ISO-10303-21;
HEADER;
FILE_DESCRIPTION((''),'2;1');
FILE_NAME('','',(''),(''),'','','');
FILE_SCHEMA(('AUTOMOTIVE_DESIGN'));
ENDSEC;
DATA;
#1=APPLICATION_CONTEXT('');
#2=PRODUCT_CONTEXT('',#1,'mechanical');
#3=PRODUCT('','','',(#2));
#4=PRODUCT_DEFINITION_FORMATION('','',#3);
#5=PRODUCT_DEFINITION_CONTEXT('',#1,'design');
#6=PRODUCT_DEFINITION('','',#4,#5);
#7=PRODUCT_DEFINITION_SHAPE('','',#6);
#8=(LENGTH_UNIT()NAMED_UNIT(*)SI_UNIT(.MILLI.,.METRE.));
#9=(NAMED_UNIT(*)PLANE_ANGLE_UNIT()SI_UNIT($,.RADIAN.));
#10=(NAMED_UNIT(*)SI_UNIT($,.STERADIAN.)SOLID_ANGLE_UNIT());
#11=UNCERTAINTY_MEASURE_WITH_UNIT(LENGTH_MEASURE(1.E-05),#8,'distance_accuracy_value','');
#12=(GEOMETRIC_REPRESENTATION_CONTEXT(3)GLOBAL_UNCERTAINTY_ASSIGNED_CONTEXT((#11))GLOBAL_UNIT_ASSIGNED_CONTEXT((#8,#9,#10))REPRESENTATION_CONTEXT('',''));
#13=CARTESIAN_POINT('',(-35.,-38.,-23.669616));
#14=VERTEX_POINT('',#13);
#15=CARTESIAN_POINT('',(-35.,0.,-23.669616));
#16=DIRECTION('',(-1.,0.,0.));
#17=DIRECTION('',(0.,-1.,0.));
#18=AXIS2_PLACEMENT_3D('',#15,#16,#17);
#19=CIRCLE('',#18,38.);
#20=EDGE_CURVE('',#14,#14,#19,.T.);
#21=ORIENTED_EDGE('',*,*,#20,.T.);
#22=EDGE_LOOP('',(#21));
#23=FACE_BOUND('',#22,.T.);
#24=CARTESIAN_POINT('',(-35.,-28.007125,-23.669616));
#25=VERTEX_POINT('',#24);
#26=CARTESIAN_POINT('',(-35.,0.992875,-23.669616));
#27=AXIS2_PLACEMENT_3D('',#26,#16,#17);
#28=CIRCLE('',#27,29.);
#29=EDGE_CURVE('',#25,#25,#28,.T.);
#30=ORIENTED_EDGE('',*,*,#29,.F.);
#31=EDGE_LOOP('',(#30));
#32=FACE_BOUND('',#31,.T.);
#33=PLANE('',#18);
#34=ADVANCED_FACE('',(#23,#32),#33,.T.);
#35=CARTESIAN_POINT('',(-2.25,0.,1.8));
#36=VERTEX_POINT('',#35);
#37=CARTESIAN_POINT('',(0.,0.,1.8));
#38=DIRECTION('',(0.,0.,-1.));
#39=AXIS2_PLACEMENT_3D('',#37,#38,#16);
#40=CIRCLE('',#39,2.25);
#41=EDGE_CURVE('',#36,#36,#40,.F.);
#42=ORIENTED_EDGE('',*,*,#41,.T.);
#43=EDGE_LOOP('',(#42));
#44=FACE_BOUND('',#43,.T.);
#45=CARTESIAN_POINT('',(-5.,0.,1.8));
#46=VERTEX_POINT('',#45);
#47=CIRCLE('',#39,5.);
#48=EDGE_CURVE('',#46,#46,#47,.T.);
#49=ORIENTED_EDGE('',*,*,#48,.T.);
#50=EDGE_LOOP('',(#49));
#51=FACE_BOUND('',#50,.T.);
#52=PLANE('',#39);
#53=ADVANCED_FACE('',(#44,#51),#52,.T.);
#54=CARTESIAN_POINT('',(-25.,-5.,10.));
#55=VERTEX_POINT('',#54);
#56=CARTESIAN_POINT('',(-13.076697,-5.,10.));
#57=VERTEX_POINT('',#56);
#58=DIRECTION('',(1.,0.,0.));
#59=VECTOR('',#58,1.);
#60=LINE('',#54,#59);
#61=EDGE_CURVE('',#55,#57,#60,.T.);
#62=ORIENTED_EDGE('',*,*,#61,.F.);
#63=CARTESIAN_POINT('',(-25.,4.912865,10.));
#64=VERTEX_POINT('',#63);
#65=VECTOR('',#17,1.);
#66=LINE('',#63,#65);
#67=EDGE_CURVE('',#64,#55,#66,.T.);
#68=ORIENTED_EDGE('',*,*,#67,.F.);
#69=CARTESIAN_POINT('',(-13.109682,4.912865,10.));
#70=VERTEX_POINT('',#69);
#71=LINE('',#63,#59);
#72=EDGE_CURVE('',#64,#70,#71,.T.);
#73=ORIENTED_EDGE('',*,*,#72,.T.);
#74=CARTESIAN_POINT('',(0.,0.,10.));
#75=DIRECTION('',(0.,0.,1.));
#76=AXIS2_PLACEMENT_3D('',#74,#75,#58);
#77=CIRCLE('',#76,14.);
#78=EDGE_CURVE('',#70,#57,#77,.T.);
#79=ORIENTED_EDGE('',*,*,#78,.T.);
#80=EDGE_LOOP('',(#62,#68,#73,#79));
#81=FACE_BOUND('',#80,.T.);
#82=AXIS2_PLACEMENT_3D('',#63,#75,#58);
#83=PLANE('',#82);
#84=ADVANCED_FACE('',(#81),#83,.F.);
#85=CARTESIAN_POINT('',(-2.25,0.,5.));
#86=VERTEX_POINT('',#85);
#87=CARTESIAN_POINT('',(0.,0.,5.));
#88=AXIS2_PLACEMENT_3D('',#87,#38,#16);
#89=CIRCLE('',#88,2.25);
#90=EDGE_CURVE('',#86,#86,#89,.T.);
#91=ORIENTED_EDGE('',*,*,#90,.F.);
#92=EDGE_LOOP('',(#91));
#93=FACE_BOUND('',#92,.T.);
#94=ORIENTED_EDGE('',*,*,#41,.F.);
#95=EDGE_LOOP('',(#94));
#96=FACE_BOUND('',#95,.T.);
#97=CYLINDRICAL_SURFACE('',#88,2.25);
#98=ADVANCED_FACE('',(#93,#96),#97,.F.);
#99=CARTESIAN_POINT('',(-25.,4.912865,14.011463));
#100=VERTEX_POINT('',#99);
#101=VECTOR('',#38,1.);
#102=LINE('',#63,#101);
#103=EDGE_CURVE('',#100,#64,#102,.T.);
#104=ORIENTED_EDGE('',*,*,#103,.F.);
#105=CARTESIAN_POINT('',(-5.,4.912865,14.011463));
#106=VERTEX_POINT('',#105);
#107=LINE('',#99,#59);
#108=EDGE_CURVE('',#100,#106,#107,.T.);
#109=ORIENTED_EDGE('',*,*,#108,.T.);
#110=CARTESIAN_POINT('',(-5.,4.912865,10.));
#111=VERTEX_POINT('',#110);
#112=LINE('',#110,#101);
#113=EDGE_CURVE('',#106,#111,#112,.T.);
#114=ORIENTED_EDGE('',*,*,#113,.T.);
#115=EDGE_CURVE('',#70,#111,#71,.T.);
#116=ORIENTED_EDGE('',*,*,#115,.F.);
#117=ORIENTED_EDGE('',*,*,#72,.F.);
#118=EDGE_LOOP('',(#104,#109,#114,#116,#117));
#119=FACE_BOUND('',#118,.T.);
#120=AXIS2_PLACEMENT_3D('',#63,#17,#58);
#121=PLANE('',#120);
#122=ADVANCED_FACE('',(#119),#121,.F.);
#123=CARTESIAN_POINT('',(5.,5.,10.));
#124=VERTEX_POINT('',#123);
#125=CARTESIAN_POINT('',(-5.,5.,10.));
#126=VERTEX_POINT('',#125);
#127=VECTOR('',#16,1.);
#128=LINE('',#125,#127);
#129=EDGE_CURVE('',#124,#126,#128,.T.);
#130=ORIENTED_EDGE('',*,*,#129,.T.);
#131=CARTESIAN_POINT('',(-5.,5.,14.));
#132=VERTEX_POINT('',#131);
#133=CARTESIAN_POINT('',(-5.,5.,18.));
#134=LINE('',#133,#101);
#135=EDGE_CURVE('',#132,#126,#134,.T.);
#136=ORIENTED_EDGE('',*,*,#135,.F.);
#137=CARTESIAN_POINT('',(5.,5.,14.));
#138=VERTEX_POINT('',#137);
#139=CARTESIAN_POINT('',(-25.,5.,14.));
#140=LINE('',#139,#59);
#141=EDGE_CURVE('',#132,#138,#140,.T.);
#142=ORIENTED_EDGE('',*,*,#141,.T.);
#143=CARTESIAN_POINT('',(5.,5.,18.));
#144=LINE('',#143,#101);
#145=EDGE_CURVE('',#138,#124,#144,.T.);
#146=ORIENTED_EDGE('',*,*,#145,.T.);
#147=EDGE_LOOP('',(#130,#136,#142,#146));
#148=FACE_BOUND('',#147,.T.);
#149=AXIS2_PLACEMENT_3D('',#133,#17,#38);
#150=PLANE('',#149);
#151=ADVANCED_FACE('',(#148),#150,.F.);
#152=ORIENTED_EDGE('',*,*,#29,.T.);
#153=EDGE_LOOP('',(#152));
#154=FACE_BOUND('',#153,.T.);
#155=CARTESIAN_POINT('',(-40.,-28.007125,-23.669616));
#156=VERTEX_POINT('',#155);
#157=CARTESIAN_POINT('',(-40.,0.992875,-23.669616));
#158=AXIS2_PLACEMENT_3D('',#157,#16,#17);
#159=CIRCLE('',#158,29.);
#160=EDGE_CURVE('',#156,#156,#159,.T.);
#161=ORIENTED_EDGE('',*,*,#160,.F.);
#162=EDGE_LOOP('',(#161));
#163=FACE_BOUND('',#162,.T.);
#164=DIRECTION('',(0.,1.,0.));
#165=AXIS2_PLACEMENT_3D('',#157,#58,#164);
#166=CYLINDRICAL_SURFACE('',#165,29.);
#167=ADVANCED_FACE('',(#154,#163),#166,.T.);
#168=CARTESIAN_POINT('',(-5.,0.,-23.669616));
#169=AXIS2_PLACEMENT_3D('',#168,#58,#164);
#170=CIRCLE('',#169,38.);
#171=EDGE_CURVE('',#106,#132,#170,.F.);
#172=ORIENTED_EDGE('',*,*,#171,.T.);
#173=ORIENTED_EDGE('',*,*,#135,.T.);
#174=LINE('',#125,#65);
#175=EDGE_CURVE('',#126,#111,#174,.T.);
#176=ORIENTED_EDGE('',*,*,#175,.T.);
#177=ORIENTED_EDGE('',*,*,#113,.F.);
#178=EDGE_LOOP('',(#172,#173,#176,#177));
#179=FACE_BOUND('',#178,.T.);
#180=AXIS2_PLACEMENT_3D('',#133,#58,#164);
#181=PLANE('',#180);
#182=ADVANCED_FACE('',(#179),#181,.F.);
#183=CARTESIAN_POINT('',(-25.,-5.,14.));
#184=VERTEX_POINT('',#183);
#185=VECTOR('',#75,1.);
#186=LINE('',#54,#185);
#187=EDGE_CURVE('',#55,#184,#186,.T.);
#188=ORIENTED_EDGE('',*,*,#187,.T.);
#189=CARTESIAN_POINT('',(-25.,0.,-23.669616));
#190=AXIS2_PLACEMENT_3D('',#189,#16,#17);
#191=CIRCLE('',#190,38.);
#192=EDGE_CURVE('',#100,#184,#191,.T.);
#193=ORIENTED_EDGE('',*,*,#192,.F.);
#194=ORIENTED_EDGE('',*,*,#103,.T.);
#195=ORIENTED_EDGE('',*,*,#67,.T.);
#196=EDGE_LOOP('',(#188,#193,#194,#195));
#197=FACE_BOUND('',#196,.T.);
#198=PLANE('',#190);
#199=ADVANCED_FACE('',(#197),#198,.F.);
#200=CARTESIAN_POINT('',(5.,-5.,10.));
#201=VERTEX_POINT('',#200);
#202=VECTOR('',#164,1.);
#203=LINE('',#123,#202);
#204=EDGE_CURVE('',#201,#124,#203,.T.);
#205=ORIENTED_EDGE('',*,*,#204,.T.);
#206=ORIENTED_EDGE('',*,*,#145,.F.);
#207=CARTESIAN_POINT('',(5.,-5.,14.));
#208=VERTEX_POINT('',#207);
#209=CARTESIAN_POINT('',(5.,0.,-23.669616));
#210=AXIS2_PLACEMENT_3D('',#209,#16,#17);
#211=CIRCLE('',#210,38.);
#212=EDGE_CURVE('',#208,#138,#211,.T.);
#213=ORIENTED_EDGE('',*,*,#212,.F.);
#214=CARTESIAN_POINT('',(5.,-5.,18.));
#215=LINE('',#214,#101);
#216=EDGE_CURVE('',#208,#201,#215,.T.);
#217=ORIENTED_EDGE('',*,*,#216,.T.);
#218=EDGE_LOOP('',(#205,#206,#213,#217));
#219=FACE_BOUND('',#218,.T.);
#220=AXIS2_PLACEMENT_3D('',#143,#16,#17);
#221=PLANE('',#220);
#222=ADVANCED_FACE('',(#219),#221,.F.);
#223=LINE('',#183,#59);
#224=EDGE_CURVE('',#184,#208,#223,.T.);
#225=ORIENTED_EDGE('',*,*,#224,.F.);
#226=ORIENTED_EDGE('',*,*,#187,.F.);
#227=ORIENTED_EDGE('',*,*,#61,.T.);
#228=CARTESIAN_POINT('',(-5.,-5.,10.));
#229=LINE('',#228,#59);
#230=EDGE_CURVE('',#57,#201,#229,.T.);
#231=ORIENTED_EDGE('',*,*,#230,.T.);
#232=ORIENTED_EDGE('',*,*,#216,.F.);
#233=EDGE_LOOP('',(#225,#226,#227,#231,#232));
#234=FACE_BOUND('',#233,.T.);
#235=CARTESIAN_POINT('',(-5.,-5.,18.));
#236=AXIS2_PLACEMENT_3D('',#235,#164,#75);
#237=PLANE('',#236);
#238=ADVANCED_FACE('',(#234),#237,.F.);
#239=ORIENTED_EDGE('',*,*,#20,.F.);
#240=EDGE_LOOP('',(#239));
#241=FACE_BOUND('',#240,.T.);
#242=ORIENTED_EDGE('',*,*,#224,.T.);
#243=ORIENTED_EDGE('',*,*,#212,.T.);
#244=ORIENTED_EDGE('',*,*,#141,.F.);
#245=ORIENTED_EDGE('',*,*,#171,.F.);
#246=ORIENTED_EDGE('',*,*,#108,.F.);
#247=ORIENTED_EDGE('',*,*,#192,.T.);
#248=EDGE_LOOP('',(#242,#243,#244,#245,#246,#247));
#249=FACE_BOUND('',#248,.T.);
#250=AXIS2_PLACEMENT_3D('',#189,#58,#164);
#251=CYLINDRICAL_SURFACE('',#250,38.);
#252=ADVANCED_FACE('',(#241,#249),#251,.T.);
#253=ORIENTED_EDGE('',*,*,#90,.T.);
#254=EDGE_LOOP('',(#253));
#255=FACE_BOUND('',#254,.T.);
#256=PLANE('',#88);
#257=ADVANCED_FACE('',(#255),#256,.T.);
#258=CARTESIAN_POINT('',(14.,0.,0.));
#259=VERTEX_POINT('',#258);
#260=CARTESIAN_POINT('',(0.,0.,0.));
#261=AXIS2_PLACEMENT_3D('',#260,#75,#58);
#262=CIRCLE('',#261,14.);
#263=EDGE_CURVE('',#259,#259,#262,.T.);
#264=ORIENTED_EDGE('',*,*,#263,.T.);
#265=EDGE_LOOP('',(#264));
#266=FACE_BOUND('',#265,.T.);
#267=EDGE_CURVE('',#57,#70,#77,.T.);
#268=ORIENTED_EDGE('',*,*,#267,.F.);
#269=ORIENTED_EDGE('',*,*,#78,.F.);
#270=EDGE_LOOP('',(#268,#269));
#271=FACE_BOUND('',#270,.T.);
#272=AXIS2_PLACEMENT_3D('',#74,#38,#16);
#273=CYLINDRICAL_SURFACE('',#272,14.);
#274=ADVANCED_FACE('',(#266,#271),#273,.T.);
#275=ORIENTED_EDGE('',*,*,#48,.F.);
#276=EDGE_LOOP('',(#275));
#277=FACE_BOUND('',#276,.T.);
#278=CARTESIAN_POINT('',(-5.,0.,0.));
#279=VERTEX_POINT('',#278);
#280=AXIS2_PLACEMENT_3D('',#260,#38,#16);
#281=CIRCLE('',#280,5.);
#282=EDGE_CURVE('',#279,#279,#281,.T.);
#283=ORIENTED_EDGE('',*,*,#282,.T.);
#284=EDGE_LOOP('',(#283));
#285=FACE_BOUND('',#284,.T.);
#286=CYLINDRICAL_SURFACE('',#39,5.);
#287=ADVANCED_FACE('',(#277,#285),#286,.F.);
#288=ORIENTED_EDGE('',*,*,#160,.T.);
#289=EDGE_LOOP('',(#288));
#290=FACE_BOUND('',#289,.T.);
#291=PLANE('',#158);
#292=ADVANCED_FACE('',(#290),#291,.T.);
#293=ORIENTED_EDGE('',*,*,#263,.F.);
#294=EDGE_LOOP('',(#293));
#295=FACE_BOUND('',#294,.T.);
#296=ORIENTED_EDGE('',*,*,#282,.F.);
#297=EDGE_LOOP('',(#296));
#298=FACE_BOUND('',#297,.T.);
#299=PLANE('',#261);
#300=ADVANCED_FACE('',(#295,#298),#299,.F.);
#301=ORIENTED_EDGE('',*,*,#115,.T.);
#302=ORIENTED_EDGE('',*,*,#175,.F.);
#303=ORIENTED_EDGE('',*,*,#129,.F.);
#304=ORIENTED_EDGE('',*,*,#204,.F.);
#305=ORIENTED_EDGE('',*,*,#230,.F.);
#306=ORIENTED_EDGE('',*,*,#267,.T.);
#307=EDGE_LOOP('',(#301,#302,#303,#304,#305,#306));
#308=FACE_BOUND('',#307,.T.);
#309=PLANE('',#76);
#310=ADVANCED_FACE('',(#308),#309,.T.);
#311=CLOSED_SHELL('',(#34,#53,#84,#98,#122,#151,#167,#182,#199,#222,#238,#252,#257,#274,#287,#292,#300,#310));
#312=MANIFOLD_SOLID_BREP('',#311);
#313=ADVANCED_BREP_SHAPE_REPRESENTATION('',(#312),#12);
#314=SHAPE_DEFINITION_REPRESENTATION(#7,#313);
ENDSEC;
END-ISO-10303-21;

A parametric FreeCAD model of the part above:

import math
import FreeCAD as App
import Part
import Sketcher
Q = App.Units.Quantity


def add_polygon(sketch, points):
    """Adds a closed chain of lines whose ends are joined by coincident constraints."""
    first, n = sketch.GeometryCount, len(points)
    for a, b in zip(points, points[1:] + points[:1]):
        sketch.addGeometry(Part.LineSegment(App.Vector(*a, 0), App.Vector(*b, 0)), False)
    for i in range(n):
        sketch.addConstraint(Sketcher.Constraint("Coincident", first + i, 2, first + (i + 1) % n, 1))

doc = App.newDocument("Part")
body = doc.addObject("PartDesign::Body", "Body")

sketch1 = body.newObject("Sketcher::SketchObject", "Sketch")
sketch1.AttachmentSupport = (doc.getObject("XY_Plane"), [""])
sketch1.MapMode = "FlatFace"
sketch1.addGeometry(Part.Circle(App.Vector(0, 0, 0), App.Vector(0, 0, 1), 14), False)
sketch1.addConstraint(Sketcher.Constraint("Coincident", 0, 3, -1, 1))
sketch1.addConstraint(Sketcher.Constraint("Diameter", 0, Q("28 mm")))
pad1 = body.newObject("PartDesign::Pad", "Pad")
pad1.Profile = sketch1
pad1.Length = 10

sketch2 = body.newObject("Sketcher::SketchObject", "Sketch001")
sketch2.AttachmentSupport = (doc.getObject("XY_Plane"), [""])
sketch2.MapMode = "FlatFace"
sketch2.addGeometry(Part.Circle(App.Vector(0, 0, 0), App.Vector(0, 0, 1), 2.25), False)
sketch2.addConstraint(Sketcher.Constraint("Coincident", 0, 3, -1, 1))
sketch2.addConstraint(Sketcher.Constraint("Diameter", 0, Q("4.5 mm")))
pocket1 = body.newObject("PartDesign::Pocket", "Pocket")
pocket1.Profile = sketch2
pocket1.Length = 5
pocket1.Reversed = True

sketch3 = body.newObject("Sketcher::SketchObject", "Sketch002")
sketch3.AttachmentSupport = (doc.getObject("XY_Plane"), [""])
sketch3.MapMode = "FlatFace"
sketch3.addGeometry(Part.Circle(App.Vector(0, 0, 0), App.Vector(0, 0, 1), 5), False)
sketch3.addConstraint(Sketcher.Constraint("Coincident", 0, 3, -1, 1))
sketch3.addConstraint(Sketcher.Constraint("Diameter", 0, Q("10 mm")))
pocket2 = body.newObject("PartDesign::Pocket", "Pocket001")
pocket2.Profile = sketch3
pocket2.Length = 1.8
pocket2.Reversed = True

sketch4 = body.newObject("Sketcher::SketchObject", "Sketch003")
sketch4.AttachmentSupport = (doc.getObject("XY_Plane"), [""])
sketch4.MapMode = "FlatFace"
sketch4.AttachmentOffset = App.Placement(App.Vector(0, 0, 10), App.Rotation())
add_polygon(sketch4, [(-5, 5), (-5, -5), (5, -5), (5, 5)])
sketch4.addConstraint(Sketcher.Constraint("Vertical", 0))
sketch4.addConstraint(Sketcher.Constraint("Horizontal", 1))
sketch4.addConstraint(Sketcher.Constraint("Vertical", 2))
sketch4.addConstraint(Sketcher.Constraint("Horizontal", 3))
sketch4.addConstraint(Sketcher.Constraint("Symmetric", 0, 2, 2, 2, -1, 1))
sketch4.addConstraint(Sketcher.Constraint("Equal", 3, 0))
sketch4.addConstraint(Sketcher.Constraint("DistanceX", 1, 1, 1, 2, Q("10 mm")))
pad2 = body.newObject("PartDesign::Pad", "Pad001")
pad2.Profile = sketch4
pad2.Length = 8

sketch5 = body.newObject("Sketcher::SketchObject", "Sketch004")
sketch5.AttachmentSupport = (doc.getObject("YZ_Plane"), [""])
sketch5.MapMode = "FlatFace"
sketch5.AttachmentOffset = App.Placement(App.Vector(0, 0, -5), App.Rotation())
add_polygon(sketch5, [(4.912865, 10), (-5, 10), (-5, 18), (4.912865, 18)])
sketch5.addConstraint(Sketcher.Constraint("Horizontal", 0))
sketch5.addConstraint(Sketcher.Constraint("Vertical", 1))
sketch5.addConstraint(Sketcher.Constraint("Horizontal", 2))
sketch5.addConstraint(Sketcher.Constraint("Vertical", 3))
sketch5.addConstraint(Sketcher.Constraint("DistanceY", 1, 1, 1, 2, Q("8 mm")))
sketch5.addConstraint(Sketcher.Constraint("DistanceX", 0, 2, -1, 1, Q("5 mm")))
sketch5.addConstraint(Sketcher.Constraint("DistanceY", -1, 1, 0, 2, Q("10 mm")))
sketch5.addConstraint(Sketcher.Constraint("DistanceX", 0, 2, 0, 1, Q("9.912865 mm")))
pad3 = body.newObject("PartDesign::Pad", "Pad002")
pad3.Profile = sketch5
pad3.Length = 20
pad3.Reversed = True

sketch6 = body.newObject("Sketcher::SketchObject", "Sketch005")
sketch6.AttachmentSupport = (doc.getObject("YZ_Plane"), [""])
sketch6.MapMode = "FlatFace"
sketch6.AttachmentOffset = App.Placement(App.Vector(0, 0, 5), App.Rotation())
sketch6.addGeometry(Part.LineSegment(App.Vector(5, 18, 0), App.Vector(-5, 18, 0)), False)
sketch6.addGeometry(Part.LineSegment(App.Vector(-5, 18, 0), App.Vector(-5, 14, 0)), False)
sketch6.addGeometry(Part.ArcOfCircle(Part.Circle(App.Vector(0, -23.669616, 0), App.Vector(0, 0, 1), 38), math.radians(82.439157), math.radians(97.560843)), False)
sketch6.addGeometry(Part.LineSegment(App.Vector(5, 14, 0), App.Vector(5, 18, 0)), False)
sketch6.addConstraint(Sketcher.Constraint("Coincident", 0, 2, 1, 1))
sketch6.addConstraint(Sketcher.Constraint("Coincident", 1, 2, 2, 2))
sketch6.addConstraint(Sketcher.Constraint("Coincident", 2, 1, 3, 1))
sketch6.addConstraint(Sketcher.Constraint("Coincident", 3, 2, 0, 1))
sketch6.addConstraint(Sketcher.Constraint("Horizontal", 0))
sketch6.addConstraint(Sketcher.Constraint("Vertical", 1))
sketch6.addConstraint(Sketcher.Constraint("Vertical", 3))
sketch6.addConstraint(Sketcher.Constraint("Symmetric", 1, 2, 2, 1, -2))
sketch6.addConstraint(Sketcher.Constraint("Radius", 2, Q("38 mm")))
sketch6.addConstraint(Sketcher.Constraint("DistanceX", 0, 2, 0, 1, Q("10 mm")))
sketch6.addConstraint(Sketcher.Constraint("DistanceY", 1, 2, 1, 1, Q("4 mm")))
sketch6.addConstraint(Sketcher.Constraint("DistanceY", -1, 1, 0, 2, Q("18 mm")))
pocket3 = body.newObject("PartDesign::Pocket", "Pocket002")
pocket3.Profile = sketch6
pocket3.Length = 30

sketch7 = body.newObject("Sketcher::SketchObject", "Sketch006")
sketch7.AttachmentSupport = (doc.getObject("YZ_Plane"), [""])
sketch7.MapMode = "FlatFace"
sketch7.AttachmentOffset = App.Placement(App.Vector(0, 0, -25), App.Rotation())
sketch7.addGeometry(Part.Circle(App.Vector(0, -23.669616, 0), App.Vector(0, 0, 1), 38), False)
sketch7.addConstraint(Sketcher.Constraint("PointOnObject", 0, 3, -2))
sketch7.addConstraint(Sketcher.Constraint("Diameter", 0, Q("76 mm")))
sketch7.addConstraint(Sketcher.Constraint("DistanceY", 0, 3, -1, 1, Q("23.669616 mm")))
pad4 = body.newObject("PartDesign::Pad", "Pad003")
pad4.Profile = sketch7
pad4.Length = 10
pad4.Reversed = True

sketch8 = body.newObject("Sketcher::SketchObject", "Sketch007")
sketch8.AttachmentSupport = (doc.getObject("YZ_Plane"), [""])
sketch8.MapMode = "FlatFace"
sketch8.AttachmentOffset = App.Placement(App.Vector(0, 0, -35), App.Rotation())
sketch8.addGeometry(Part.Circle(App.Vector(0.992875, -23.669616, 0), App.Vector(0, 0, 1), 29), False)
sketch8.addConstraint(Sketcher.Constraint("Diameter", 0, Q("58 mm")))
sketch8.addConstraint(Sketcher.Constraint("DistanceX", -1, 1, 0, 3, Q("0.992875 mm")))
sketch8.addConstraint(Sketcher.Constraint("DistanceY", 0, 3, -1, 1, Q("23.669616 mm")))
pad5 = body.newObject("PartDesign::Pad", "Pad004")
pad5.Profile = sketch8
pad5.Length = 5
pad5.Reversed = True

doc.recompute()
